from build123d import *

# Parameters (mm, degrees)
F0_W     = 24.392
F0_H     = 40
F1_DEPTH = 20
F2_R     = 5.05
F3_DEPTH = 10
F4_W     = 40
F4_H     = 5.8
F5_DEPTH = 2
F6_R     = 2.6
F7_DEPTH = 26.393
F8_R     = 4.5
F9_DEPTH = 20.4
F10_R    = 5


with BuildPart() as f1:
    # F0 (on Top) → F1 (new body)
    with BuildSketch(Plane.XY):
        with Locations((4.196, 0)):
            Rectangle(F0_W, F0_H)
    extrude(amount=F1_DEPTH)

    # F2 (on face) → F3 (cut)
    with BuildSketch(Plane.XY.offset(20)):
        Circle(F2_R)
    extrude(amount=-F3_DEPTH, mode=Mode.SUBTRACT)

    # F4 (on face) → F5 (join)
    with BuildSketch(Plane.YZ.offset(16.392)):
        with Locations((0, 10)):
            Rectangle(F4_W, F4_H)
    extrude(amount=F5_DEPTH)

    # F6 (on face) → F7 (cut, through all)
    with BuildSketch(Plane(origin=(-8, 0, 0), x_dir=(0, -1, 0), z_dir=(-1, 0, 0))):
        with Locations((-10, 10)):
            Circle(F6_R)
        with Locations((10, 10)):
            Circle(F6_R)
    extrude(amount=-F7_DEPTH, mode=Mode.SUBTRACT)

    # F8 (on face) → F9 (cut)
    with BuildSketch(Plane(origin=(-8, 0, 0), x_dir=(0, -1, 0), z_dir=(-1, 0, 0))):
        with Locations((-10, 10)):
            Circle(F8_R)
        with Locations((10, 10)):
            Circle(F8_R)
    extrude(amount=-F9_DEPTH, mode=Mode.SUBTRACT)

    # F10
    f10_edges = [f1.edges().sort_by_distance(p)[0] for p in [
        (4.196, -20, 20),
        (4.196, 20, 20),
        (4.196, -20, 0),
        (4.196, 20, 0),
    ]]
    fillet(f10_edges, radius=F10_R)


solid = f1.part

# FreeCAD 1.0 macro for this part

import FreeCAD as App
import Part
import Sketcher
from FreeCAD import Vector


def edges_at(feature, points):
    """Names of the edges that pass closest to the given points."""
    edges = feature.Shape.Edges
    near = lambda p: min(range(len(edges)), key=lambda i: edges[i].distToShape(Part.Vertex(*p))[0])
    return sorted({f"Edge{near(p) + 1}" for p in points})

doc = App.newDocument("Part")
body = doc.addObject("PartDesign::Body", "Body")

# Sketch on XY plane
sketch1 = doc.addObject("Sketcher::SketchObject", "Sketch")
body.addObject(sketch1)
sketch1.AttachmentSupport = (doc.XY_Plane, [""])
sketch1.MapMode = "FlatFace"
sketch1.addGeometry(Part.LineSegment(Vector(-8, 20, 0), Vector(-8, -20, 0)), False)
sketch1.addGeometry(Part.LineSegment(Vector(-8, -20, 0), Vector(16, -20, 0)), False)
sketch1.addGeometry(Part.LineSegment(Vector(16, -20, 0), Vector(16, 20, 0)), False)
sketch1.addGeometry(Part.LineSegment(Vector(16, 20, 0), Vector(-8, 20, 0)), False)
sketch1.addConstraint(Sketcher.Constraint("Coincident", 0, 2, 1, 1))
sketch1.addConstraint(Sketcher.Constraint("Coincident", 1, 2, 2, 1))
sketch1.addConstraint(Sketcher.Constraint("Coincident", 2, 2, 3, 1))
sketch1.addConstraint(Sketcher.Constraint("Coincident", 3, 2, 0, 1))
sketch1.addConstraint(Sketcher.Constraint("Vertical", 0))
sketch1.addConstraint(Sketcher.Constraint("Horizontal", 1))
sketch1.addConstraint(Sketcher.Constraint("Vertical", 2))
sketch1.addConstraint(Sketcher.Constraint("Horizontal", 3))
sketch1.addConstraint(Sketcher.Constraint("DistanceY", 0, 2, 0, 1, 40.0))
sketch1.addConstraint(Sketcher.Constraint("DistanceX", 0, 2, -1, 1, 8.0))
sketch1.addConstraint(Sketcher.Constraint("DistanceY", 0, 2, -1, 1, 20.0))
sketch1.addConstraint(Sketcher.Constraint("DistanceX", 1, 1, 1, 2, 24.392))
pad1 = doc.addObject("PartDesign::Pad", "Pad")
body.addObject(pad1)
pad1.Profile = sketch1
pad1.Length = 20

# Sketch on XY plane
sketch2 = doc.addObject("Sketcher::SketchObject", "Sketch001")
body.addObject(sketch2)
sketch2.AttachmentSupport = (doc.XY_Plane, [""])
sketch2.MapMode = "FlatFace"
sketch2.AttachmentOffset = App.Placement(Vector(0, 0, 20), App.Rotation())
sketch2.addGeometry(Part.Circle(Vector(0, 0, 0), Vector(0, 0, 1), 5), False)
sketch2.addConstraint(Sketcher.Constraint("Coincident", 0, 3, -1, 1))
sketch2.addConstraint(Sketcher.Constraint("Diameter", 0, 10.1))
pocket1 = doc.addObject("PartDesign::Pocket", "Pocket")
body.addObject(pocket1)
pocket1.Profile = sketch2
pocket1.Length = 10

# Sketch on YZ plane
sketch3 = doc.addObject("Sketcher::SketchObject", "Sketch002")
body.addObject(sketch3)
sketch3.AttachmentSupport = (doc.YZ_Plane, [""])
sketch3.MapMode = "FlatFace"
sketch3.AttachmentOffset = App.Placement(Vector(0, 0, 16.392), App.Rotation())
sketch3.addGeometry(Part.LineSegment(Vector(-20, 13, 0), Vector(-20, 7, 0)), False)
sketch3.addGeometry(Part.LineSegment(Vector(-20, 7, 0), Vector(20, 7, 0)), False)
sketch3.addGeometry(Part.LineSegment(Vector(20, 7, 0), Vector(20, 13, 0)), False)
sketch3.addGeometry(Part.LineSegment(Vector(20, 13, 0), Vector(-20, 13, 0)), False)
sketch3.addConstraint(Sketcher.Constraint("Coincident", 0, 2, 1, 1))
sketch3.addConstraint(Sketcher.Constraint("Coincident", 1, 2, 2, 1))
sketch3.addConstraint(Sketcher.Constraint("Coincident", 2, 2, 3, 1))
sketch3.addConstraint(Sketcher.Constraint("Coincident", 3, 2, 0, 1))
sketch3.addConstraint(Sketcher.Constraint("Vertical", 0))
sketch3.addConstraint(Sketcher.Constraint("Horizontal", 1))
sketch3.addConstraint(Sketcher.Constraint("Vertical", 2))
sketch3.addConstraint(Sketcher.Constraint("Horizontal", 3))
sketch3.addConstraint(Sketcher.Constraint("DistanceX", 1, 1, 1, 2, 40.0))
sketch3.addConstraint(Sketcher.Constraint("DistanceY", 0, 2, 0, 1, 5.8))
sketch3.addConstraint(Sketcher.Constraint("DistanceX", 0, 2, -1, 1, 20.0))
sketch3.addConstraint(Sketcher.Constraint("DistanceY", -1, 1, 0, 2, 7.1))
pad2 = doc.addObject("PartDesign::Pad", "Pad001")
body.addObject(pad2)
pad2.Profile = sketch3
pad2.Length = 2

# Sketch on YZ plane
sketch4 = doc.addObject("Sketcher::SketchObject", "Sketch003")
body.addObject(sketch4)
sketch4.AttachmentSupport = (doc.YZ_Plane, [""])
sketch4.MapMode = "FlatFace"
sketch4.AttachmentOffset = App.Placement(Vector(0, 0, -8), App.Rotation())
sketch4.addGeometry(Part.Circle(Vector(10, 10, 0), Vector(0, 0, 1), 2.6), False)
sketch4.addGeometry(Part.Circle(Vector(-10, 10, 0), Vector(0, 0, 1), 2.6), False)
sketch4.addConstraint(Sketcher.Constraint("Equal", 0, 1))
sketch4.addConstraint(Sketcher.Constraint("Symmetric", 0, 3, 1, 3, -2))
sketch4.addConstraint(Sketcher.Constraint("Diameter", 0, 5.2))
sketch4.addConstraint(Sketcher.Constraint("DistanceX", -1, 1, 0, 3, 10.0))
sketch4.addConstraint(Sketcher.Constraint("DistanceY", -1, 1, 0, 3, 10.0))
pocket2 = doc.addObject("PartDesign::Pocket", "Pocket001")
body.addObject(pocket2)
pocket2.Profile = sketch4
pocket2.Type = "ThroughAll"
pocket2.Reversed = True

# Sketch on YZ plane
sketch5 = doc.addObject("Sketcher::SketchObject", "Sketch004")
body.addObject(sketch5)
sketch5.AttachmentSupport = (doc.YZ_Plane, [""])
sketch5.MapMode = "FlatFace"
sketch5.AttachmentOffset = App.Placement(Vector(0, 0, -8), App.Rotation())
sketch5.addGeometry(Part.Circle(Vector(10, 10, 0), Vector(0, 0, 1), 4.5), False)
sketch5.addGeometry(Part.Circle(Vector(-10, 10, 0), Vector(0, 0, 1), 4.5), False)
sketch5.addConstraint(Sketcher.Constraint("Equal", 0, 1))
sketch5.addConstraint(Sketcher.Constraint("Symmetric", 0, 3, 1, 3, -2))
sketch5.addConstraint(Sketcher.Constraint("Diameter", 0, 9.0))
sketch5.addConstraint(Sketcher.Constraint("DistanceX", -1, 1, 0, 3, 10.0))
sketch5.addConstraint(Sketcher.Constraint("DistanceY", -1, 1, 0, 3, 10.0))
pocket3 = doc.addObject("PartDesign::Pocket", "Pocket002")
body.addObject(pocket3)
pocket3.Profile = sketch5
pocket3.Length = 20.4
pocket3.Reversed = True
doc.recompute()

fillet = doc.addObject("PartDesign::Fillet", "Fillet")
body.addObject(fillet)
fillet.Base = (pocket3, edges_at(pocket3, [
    (4.196, -20, 20),
    (4.196, 20, 20),
    (4.196, -20, 0),
    (4.196, 20, 0),
]))
fillet.Radius = 5

doc.recompute()
